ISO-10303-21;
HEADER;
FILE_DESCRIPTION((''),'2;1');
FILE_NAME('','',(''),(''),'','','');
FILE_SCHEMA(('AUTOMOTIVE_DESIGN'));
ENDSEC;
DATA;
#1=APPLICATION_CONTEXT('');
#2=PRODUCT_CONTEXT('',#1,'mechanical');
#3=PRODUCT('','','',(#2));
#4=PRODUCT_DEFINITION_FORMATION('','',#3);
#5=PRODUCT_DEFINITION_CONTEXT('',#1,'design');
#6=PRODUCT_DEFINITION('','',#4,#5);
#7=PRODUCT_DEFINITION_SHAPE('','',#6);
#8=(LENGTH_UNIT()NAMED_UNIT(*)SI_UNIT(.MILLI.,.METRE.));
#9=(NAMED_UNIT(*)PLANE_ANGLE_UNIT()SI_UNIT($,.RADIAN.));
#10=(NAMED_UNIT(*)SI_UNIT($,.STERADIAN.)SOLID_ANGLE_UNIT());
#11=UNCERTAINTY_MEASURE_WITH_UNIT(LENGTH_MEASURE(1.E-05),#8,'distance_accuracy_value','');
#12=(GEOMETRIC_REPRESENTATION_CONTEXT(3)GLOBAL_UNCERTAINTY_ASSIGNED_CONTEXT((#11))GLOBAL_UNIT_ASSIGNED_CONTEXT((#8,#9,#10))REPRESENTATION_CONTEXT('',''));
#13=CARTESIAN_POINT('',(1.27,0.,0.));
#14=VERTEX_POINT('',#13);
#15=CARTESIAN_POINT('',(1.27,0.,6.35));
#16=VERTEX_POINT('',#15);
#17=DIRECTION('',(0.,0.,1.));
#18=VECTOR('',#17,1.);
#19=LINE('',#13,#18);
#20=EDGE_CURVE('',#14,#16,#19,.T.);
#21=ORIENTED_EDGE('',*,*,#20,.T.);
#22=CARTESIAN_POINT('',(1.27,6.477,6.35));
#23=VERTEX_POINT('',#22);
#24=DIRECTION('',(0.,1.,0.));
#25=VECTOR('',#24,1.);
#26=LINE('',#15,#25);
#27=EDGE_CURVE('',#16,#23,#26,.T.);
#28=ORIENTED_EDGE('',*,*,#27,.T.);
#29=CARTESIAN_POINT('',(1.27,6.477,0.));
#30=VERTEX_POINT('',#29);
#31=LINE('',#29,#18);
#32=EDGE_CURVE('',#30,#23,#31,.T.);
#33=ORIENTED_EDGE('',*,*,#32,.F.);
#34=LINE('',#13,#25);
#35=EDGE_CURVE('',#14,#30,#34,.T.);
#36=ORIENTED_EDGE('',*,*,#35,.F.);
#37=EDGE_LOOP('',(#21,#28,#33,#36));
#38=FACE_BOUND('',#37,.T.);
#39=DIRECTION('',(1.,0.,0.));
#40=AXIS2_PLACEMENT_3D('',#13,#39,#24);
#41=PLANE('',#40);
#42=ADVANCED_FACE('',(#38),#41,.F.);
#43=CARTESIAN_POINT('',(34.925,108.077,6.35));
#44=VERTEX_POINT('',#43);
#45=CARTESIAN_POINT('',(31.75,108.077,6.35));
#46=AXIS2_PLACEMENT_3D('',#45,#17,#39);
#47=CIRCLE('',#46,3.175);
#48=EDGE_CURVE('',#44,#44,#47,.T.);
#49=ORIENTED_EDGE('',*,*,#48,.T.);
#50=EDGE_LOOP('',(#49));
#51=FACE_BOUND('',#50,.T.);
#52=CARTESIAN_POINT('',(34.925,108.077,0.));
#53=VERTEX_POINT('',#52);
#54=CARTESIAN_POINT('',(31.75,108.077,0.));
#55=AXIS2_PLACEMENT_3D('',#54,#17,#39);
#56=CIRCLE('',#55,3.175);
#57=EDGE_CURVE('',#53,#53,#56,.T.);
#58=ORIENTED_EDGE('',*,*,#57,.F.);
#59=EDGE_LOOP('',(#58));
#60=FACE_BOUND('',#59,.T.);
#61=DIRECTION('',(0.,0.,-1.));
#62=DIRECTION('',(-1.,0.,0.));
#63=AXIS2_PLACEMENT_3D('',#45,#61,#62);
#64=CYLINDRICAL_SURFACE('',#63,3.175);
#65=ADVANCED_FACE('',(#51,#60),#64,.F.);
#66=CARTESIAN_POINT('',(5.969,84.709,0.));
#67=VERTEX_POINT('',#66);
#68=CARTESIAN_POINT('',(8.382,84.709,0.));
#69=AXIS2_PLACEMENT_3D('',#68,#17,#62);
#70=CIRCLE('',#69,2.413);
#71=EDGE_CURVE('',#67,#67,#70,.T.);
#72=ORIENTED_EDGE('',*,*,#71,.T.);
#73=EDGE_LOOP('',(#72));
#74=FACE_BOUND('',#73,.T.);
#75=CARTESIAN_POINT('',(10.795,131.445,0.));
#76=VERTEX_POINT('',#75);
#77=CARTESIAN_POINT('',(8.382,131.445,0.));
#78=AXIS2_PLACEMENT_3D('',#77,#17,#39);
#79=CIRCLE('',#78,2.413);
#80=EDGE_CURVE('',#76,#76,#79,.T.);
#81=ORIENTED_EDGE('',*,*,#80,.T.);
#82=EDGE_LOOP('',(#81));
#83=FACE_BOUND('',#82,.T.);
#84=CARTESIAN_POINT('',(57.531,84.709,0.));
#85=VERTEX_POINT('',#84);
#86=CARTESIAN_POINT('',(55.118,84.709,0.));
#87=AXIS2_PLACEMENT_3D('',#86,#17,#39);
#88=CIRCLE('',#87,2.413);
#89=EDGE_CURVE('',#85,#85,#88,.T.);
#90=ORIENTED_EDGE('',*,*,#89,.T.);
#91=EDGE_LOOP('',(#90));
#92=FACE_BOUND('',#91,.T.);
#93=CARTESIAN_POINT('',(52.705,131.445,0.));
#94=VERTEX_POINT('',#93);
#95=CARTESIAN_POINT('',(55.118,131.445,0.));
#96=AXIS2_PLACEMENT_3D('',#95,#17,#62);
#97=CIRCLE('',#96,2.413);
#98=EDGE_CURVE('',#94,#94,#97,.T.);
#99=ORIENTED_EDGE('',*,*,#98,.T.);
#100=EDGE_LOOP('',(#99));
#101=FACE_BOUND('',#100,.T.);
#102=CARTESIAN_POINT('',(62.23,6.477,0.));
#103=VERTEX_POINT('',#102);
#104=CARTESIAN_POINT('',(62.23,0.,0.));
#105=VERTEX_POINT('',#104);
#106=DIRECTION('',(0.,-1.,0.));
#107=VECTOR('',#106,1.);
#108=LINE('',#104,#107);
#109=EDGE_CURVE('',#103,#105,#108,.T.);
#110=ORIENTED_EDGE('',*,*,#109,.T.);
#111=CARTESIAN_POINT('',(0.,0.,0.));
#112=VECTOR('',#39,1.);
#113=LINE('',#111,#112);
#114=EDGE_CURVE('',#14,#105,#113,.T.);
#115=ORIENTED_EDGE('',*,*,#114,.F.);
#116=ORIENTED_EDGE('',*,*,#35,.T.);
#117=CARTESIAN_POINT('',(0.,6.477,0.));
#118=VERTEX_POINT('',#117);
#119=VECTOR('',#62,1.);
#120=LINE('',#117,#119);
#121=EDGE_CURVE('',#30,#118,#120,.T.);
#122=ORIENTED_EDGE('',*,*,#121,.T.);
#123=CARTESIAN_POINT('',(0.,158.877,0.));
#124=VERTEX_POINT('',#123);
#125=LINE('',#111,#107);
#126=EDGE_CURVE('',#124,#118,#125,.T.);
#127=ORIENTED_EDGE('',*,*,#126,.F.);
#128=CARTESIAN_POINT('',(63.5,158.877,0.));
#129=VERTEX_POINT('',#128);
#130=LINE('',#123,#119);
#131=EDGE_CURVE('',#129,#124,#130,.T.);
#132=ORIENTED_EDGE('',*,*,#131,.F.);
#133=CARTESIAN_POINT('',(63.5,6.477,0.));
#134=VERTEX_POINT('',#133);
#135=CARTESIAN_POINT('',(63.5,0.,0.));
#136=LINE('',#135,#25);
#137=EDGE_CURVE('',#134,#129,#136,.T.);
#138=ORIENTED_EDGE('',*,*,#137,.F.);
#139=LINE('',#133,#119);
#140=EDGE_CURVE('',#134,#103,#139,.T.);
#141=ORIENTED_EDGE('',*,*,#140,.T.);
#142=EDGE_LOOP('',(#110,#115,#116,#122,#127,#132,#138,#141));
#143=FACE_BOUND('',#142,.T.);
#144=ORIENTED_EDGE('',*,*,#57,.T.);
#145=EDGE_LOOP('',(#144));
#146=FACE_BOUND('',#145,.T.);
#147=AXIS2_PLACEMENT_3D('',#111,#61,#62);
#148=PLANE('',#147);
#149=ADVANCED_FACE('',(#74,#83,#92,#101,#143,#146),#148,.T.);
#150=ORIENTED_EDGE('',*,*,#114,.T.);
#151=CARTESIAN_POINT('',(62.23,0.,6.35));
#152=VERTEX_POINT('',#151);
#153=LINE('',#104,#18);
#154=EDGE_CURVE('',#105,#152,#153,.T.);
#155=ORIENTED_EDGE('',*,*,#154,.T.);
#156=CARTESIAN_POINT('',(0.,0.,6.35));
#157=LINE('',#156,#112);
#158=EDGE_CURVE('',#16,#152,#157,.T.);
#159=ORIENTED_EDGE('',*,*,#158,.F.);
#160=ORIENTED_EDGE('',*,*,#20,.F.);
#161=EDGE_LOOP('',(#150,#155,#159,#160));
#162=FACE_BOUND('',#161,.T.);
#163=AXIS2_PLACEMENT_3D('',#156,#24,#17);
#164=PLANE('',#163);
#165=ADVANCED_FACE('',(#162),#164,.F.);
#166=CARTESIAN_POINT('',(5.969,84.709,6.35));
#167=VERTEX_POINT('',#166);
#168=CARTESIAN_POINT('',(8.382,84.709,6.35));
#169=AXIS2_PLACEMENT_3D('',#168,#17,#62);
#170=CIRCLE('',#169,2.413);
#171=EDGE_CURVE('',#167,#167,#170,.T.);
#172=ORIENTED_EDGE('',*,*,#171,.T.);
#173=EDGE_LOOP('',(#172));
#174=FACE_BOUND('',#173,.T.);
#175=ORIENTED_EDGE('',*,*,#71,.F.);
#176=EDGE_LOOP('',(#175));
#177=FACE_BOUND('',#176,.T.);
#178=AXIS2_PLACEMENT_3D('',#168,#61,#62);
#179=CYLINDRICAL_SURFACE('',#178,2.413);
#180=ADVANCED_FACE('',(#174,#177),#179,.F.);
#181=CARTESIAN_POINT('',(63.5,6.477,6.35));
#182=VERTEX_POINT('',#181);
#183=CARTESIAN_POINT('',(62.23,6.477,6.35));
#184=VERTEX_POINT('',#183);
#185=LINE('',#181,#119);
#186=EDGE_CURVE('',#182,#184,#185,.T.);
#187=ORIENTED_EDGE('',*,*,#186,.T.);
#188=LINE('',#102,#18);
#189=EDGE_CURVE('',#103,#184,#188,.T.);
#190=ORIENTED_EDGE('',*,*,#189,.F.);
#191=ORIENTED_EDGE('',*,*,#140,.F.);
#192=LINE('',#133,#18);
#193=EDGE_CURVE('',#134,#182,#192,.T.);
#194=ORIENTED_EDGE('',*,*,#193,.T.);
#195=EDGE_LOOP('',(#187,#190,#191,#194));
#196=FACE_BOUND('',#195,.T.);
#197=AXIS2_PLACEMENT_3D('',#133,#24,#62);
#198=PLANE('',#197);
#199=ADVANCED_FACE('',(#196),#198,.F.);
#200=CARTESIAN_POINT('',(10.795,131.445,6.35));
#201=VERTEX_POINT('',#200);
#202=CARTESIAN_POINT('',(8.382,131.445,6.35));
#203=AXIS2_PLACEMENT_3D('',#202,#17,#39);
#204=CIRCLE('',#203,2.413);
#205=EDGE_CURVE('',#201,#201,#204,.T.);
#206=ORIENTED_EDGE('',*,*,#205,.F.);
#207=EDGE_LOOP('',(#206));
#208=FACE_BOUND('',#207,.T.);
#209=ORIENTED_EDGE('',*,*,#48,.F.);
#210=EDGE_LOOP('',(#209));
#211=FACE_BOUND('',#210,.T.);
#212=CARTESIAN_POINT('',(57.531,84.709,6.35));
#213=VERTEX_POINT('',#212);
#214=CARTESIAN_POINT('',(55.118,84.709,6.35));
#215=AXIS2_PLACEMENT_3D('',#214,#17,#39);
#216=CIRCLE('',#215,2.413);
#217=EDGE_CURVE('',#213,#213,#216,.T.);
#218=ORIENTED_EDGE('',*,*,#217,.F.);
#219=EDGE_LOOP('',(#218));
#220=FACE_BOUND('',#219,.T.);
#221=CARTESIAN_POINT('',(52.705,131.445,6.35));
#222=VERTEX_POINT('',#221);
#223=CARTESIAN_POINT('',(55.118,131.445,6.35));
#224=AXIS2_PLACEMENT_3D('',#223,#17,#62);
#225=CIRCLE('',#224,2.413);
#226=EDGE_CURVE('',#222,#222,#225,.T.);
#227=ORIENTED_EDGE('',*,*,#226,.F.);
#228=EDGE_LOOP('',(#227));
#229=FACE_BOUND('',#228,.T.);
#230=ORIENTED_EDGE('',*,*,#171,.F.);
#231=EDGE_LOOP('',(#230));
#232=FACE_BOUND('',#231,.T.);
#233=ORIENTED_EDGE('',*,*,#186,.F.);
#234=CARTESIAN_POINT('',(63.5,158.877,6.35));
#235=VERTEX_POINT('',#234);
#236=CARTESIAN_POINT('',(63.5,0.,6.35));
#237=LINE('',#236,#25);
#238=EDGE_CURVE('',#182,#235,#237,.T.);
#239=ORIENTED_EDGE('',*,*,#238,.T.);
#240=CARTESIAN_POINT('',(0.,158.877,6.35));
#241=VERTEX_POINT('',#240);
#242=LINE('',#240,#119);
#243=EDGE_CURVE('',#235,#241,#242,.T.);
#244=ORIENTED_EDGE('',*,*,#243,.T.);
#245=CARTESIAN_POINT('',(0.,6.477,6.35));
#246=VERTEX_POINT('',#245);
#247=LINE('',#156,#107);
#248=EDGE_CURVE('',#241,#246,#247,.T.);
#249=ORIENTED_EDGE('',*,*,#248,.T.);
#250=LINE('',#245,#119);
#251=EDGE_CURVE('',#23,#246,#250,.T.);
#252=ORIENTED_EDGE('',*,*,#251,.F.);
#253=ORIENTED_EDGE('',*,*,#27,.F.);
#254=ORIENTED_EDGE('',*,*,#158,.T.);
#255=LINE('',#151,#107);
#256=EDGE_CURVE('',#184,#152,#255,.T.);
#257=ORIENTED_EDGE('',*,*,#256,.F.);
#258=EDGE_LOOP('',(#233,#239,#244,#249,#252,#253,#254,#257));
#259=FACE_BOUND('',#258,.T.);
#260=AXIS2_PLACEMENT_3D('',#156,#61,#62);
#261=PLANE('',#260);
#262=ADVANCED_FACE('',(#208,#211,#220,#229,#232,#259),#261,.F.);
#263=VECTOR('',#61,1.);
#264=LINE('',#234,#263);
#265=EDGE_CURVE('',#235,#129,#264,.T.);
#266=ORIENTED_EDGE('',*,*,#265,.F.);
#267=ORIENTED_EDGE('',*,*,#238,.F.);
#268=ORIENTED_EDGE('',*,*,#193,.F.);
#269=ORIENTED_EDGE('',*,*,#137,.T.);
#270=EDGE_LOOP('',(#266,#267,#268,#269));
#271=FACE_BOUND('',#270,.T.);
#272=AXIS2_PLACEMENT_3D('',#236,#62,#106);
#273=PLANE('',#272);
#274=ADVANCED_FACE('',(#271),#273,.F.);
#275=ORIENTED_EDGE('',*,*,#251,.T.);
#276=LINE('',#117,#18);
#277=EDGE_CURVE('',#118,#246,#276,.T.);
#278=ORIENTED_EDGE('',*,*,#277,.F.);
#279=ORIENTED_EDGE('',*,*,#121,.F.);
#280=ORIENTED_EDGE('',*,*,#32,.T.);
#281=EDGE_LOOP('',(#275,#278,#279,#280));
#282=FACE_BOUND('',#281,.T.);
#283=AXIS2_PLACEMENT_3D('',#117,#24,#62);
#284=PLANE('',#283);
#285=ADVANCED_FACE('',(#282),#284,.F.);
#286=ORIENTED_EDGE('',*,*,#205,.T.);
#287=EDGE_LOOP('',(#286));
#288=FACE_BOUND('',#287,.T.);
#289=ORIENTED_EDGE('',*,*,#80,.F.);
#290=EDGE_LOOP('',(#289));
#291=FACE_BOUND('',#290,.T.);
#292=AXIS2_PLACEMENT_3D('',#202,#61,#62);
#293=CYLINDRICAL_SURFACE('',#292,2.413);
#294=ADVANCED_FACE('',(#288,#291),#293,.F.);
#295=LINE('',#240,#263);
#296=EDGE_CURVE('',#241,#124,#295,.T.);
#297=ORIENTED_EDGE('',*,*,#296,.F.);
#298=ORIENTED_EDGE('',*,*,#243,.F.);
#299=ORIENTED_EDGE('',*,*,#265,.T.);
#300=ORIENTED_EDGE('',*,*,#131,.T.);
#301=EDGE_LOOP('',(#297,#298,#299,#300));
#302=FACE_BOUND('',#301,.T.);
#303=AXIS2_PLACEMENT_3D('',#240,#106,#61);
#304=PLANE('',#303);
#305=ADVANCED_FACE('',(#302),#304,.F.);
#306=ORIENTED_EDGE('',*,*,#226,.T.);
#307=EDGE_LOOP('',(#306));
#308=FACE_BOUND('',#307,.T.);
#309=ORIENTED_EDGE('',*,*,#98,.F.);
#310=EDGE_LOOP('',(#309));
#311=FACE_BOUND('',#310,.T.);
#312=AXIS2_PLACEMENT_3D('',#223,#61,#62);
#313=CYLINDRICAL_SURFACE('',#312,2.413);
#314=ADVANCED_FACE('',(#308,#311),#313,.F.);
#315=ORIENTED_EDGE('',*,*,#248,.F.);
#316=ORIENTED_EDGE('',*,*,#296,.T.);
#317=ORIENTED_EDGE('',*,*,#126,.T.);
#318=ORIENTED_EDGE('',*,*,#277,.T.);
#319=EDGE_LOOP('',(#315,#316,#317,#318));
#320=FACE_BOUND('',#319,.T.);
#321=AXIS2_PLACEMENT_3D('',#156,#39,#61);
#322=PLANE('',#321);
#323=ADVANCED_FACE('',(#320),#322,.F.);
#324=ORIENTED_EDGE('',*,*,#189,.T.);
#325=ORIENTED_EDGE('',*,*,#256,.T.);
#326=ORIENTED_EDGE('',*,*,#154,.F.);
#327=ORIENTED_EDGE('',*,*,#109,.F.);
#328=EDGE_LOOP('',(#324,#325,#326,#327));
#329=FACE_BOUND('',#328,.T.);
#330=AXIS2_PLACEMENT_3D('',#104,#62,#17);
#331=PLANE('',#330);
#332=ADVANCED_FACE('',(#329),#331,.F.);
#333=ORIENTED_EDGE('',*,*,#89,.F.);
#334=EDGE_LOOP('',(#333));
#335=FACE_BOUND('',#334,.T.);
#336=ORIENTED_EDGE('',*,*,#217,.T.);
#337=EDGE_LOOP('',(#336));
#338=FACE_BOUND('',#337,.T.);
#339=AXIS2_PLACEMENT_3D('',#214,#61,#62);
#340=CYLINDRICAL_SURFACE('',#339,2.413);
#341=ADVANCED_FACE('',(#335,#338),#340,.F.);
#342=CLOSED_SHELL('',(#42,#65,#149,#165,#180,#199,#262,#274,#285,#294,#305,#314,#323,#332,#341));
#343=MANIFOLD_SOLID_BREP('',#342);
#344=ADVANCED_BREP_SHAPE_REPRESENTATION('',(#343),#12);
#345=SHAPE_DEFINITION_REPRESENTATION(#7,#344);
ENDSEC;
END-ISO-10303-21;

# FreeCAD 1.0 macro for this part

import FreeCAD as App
import Part
import Sketcher
from FreeCAD import Vector
Q = App.Units.Quantity


def add_polygon(sketch, points):
    """Adds a closed chain of lines whose ends are joined by coincident constraints."""
    first, n = sketch.GeometryCount, len(points)
    for a, b in zip(points, points[1:] + points[:1]):
        sketch.addGeometry(Part.LineSegment(App.Vector(*a, 0), App.Vector(*b, 0)), False)
    for i in range(n):
        sketch.addConstraint(Sketcher.Constraint("Coincident", first + i, 2, first + (i + 1) % n, 1))

doc = App.newDocument("Part")
body = doc.addObject("PartDesign::Body", "Body")

# Sketch on XY plane
sketch1 = doc.addObject("Sketcher::SketchObject", "Sketch")
body.addObject(sketch1)
sketch1.AttachmentSupport = (doc.XY_Plane, [""])
sketch1.MapMode = "FlatFace"
add_polygon(sketch1, [(0, 158.9), (0, 0), (63.5, 0), (63.5, 158.9)])  # lines 0-3
sketch1.addGeometry(Part.Circle(Vector(8.4, 84.7, 0), Vector(0, 0, 1), 2.4), False)  # 4
sketch1.addGeometry(Part.Circle(Vector(55.1, 84.7, 0), Vector(0, 0, 1), 2.4), False)  # 5
sketch1.addGeometry(Part.Circle(Vector(8.4, 131.4, 0), Vector(0, 0, 1), 2.4), False)  # 6
sketch1.addGeometry(Part.Circle(Vector(31.8, 108.1, 0), Vector(0, 0, 1), 3.2), False)  # 7
sketch1.addGeometry(Part.Circle(Vector(55.1, 131.4, 0), Vector(0, 0, 1), 2.4), False)  # 8
sketch1.addConstraint([
    Sketcher.Constraint("Vertical", 0),
    Sketcher.Constraint("Horizontal", 1),
    Sketcher.Constraint("Vertical", 2),
    Sketcher.Constraint("Horizontal", 3),
    Sketcher.Constraint("Coincident", 0, 2, -1, 1),
    Sketcher.Constraint("Equal", 4, 5),
    Sketcher.Constraint("Equal", 5, 6),
    Sketcher.Constraint("Equal", 6, 8),
    Sketcher.Constraint("Horizontal", 4, 3, 5, 3),
    Sketcher.Constraint("Horizontal", 6, 3, 8, 3),
    Sketcher.Constraint("Vertical", 4, 3, 6, 3),
    Sketcher.Constraint("Vertical", 5, 3, 8, 3),
    Sketcher.Constraint("Diameter", 4, Q("0.19 in")),
    Sketcher.Constraint("Diameter", 7, Q("0.25 in")),
    Sketcher.Constraint("DistanceX", 1, 1, 1, 2, Q("2.5 in")),
    Sketcher.Constraint("DistanceY", 7, 3, 2, 2, Q("2 in")),
    Sketcher.Constraint("DistanceY", 0, 2, 0, 1, Q("6.255 in")),
    Sketcher.Constraint("DistanceX", -1, 1, 4, 3, Q("0.33 in")),
    Sketcher.Constraint("DistanceX", -1, 1, 5, 3, Q("2.17 in")),
    Sketcher.Constraint("DistanceX", -1, 1, 7, 3, Q("1.25 in")),
    Sketcher.Constraint("DistanceY", 4, 3, 6, 3, Q("1.84 in")),
    Sketcher.Constraint("DistanceY", 4, 3, 7, 3, Q("0.92 in")),
])
pad1 = doc.addObject("PartDesign::Pad", "Pad")
body.addObject(pad1)
pad1.Profile = sketch1
pad1.Length = Q("0.25 in")

# Sketch on XY plane
sketch2 = doc.addObject("Sketcher::SketchObject", "Sketch001")
body.addObject(sketch2)
sketch2.AttachmentSupport = (doc.XY_Plane, [""])
sketch2.MapMode = "FlatFace"
sketch2.AttachmentOffset = App.Placement(Vector(0, 0, 0.25 * 25.4), App.Rotation())
add_polygon(sketch2, [(0, 6.5), (0, 0), (1.3, 0), (1.3, 6.5)])  # lines 0-3
add_polygon(sketch2, [(62.2, 6.5), (62.2, 0), (63.5, 0), (63.5, 6.5)])  # lines 4-7
sketch2.addConstraint([
    Sketcher.Constraint("Vertical", 0),
    Sketcher.Constraint("Horizontal", 1),
    Sketcher.Constraint("Vertical", 2),
    Sketcher.Constraint("Horizontal", 3),
    Sketcher.Constraint("Vertical", 4),
    Sketcher.Constraint("Horizontal", 5),
    Sketcher.Constraint("Vertical", 6),
    Sketcher.Constraint("Horizontal", 7),
    Sketcher.Constraint("Coincident", 0, 2, -1, 1),
    Sketcher.Constraint("PointOnObject", 4, 2, -1),
    Sketcher.Constraint("Horizontal", 3, 2, 6, 2),
    Sketcher.Constraint("Equal", 3, 5),
    Sketcher.Constraint("DistanceX", 1, 1, 1, 2, Q("0.05 in")),
    Sketcher.Constraint("DistanceX", -1, 1, 5, 2, Q("2.5 in")),
    Sketcher.Constraint("DistanceY", 0, 2, 0, 1, Q("0.255 in")),
])
pocket1 = doc.addObject("PartDesign::Pocket", "Pocket")
body.addObject(pocket1)
pocket1.Profile = sketch2
pocket1.Type = "ThroughAll"

doc.recompute()
